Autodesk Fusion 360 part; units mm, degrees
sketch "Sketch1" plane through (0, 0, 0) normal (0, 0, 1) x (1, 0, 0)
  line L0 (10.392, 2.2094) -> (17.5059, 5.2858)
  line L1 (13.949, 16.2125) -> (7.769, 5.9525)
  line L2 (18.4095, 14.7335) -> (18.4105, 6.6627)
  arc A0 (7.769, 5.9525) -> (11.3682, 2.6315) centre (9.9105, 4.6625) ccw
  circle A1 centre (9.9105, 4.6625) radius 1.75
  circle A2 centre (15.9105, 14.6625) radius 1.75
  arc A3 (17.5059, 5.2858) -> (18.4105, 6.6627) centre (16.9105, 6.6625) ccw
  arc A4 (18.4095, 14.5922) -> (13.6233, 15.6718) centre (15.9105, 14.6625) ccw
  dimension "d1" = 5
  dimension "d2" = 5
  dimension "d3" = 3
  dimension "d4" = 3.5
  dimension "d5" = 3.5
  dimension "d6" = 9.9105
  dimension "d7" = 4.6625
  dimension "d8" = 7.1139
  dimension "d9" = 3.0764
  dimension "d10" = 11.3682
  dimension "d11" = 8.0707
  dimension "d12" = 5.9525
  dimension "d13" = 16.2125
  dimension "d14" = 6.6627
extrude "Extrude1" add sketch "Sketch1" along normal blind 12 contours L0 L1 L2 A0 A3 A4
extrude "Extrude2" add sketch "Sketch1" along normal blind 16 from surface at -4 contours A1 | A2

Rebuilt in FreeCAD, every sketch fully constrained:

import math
import FreeCAD as App
import Part
import Sketcher
Q = App.Units.Quantity

doc = App.newDocument("Part")
body = doc.addObject("PartDesign::Body", "Body")

sketch1 = body.newObject("Sketcher::SketchObject", "Sketch")
sketch1.AttachmentSupport = (doc.getObject("XY_Plane"), [""])
sketch1.MapMode = "FlatFace"
sketch1.addGeometry([
    Part.ArcOfCircle(Part.Circle(App.Vector(9.9, 4.7, 0), App.Vector(0, 0, 1), 2.5), math.radians(149), math.radians(281)),
    Part.LineSegment(App.Vector(10.4, 2.2, 0), App.Vector(17.5, 5.3, 0)),
    Part.ArcOfCircle(Part.Circle(App.Vector(16.9, 6.7, 0), App.Vector(0, 0, 1), 1.5), math.radians(-67), math.radians(0)),
    Part.LineSegment(App.Vector(18.4, 6.7, 0), App.Vector(18.4, 14.7, 0)),
    Part.ArcOfCircle(Part.Circle(App.Vector(15.9, 14.7, 0), App.Vector(0, 0, 1), 2.5), math.radians(2), math.radians(142)),
    Part.LineSegment(App.Vector(13.9, 16.2, 0), App.Vector(7.8, 6, 0)),
    Part.Circle(App.Vector(9.9, 4.7, 0), App.Vector(0, 0, 1), 1.8),
    Part.Circle(App.Vector(15.9, 14.7, 0), App.Vector(0, 0, 1), 1.8),
], False)
sketch1.addConstraint([
    Sketcher.Constraint("Coincident", 0, 2, 1, 1),
    Sketcher.Constraint("Tangent", 1, 2, 2, 1),
    Sketcher.Constraint("Tangent", 2, 2, 3, 1),
    Sketcher.Constraint("Coincident", 3, 2, 4, 1),
    Sketcher.Constraint("Coincident", 4, 2, 5, 1),
    Sketcher.Constraint("Tangent", 5, 2, 0, 1),
    Sketcher.Constraint("Coincident", 6, 3, 0, 3),
    Sketcher.Constraint("Coincident", 7, 3, 4, 3),
    Sketcher.Constraint("Equal", 0, 4),
    Sketcher.Constraint("Equal", 6, 7),
    Sketcher.Constraint("Diameter", 6, Q("3.5 mm")),
    Sketcher.Constraint("Radius", 0, Q("2.5 mm")),
    Sketcher.Constraint("Radius", 2, Q("1.5 mm")),
    Sketcher.Constraint("DistanceX", 0, 3, 2, 3, Q("7 mm")),
    Sketcher.Constraint("DistanceY", 0, 3, 2, 3, Q("2 mm")),
    Sketcher.Constraint("DistanceX", 4, 3, 2, 3, Q("1 mm")),
    Sketcher.Constraint("DistanceY", 2, 3, 4, 3, Q("8 mm")),
    Sketcher.Constraint("DistanceY", 2, 3, 3, 2, Q("8.071 mm")),
    Sketcher.Constraint("DistanceX", -1, 1, 0, 3, Q("9.9105 mm")),
    Sketcher.Constraint("DistanceY", -1, 1, 0, 3, Q("4.6625 mm")),
    Sketcher.Constraint("DistanceY", -1, 1, 4, 2, Q("16.2125 mm")),
    Sketcher.Constraint("DistanceX", 0, 2, 1, 2, Q("7.1139 mm")),
])
pad1 = body.newObject("PartDesign::Pad", "Pad")
pad1.Profile = sketch1
pad1.Length = 12

sketch2 = body.newObject("Sketcher::SketchObject", "Sketch001")
sketch2.AttachmentSupport = (doc.getObject("XY_Plane"), [""])
sketch2.MapMode = "FlatFace"
sketch2.AttachmentOffset = App.Placement(App.Vector(0, 0, -4), App.Rotation())
sketch2.addGeometry([
    Part.Circle(App.Vector(9.9, 4.7, 0), App.Vector(0, 0, 1), 1.8),
    Part.Circle(App.Vector(15.9, 14.7, 0), App.Vector(0, 0, 1), 1.8),
], False)
sketch2.addConstraint([
    Sketcher.Constraint("Equal", 0, 1),
    Sketcher.Constraint("Diameter", 0, Q("3.5 mm")),
    Sketcher.Constraint("DistanceX", 0, 3, 1, 3, Q("6 mm")),
    Sketcher.Constraint("DistanceY", 0, 3, 1, 3, Q("10 mm")),
    Sketcher.Constraint("DistanceX", -1, 1, 0, 3, Q("9.9105 mm")),
    Sketcher.Constraint("DistanceY", -1, 1, 0, 3, Q("4.6625 mm")),
])
pad2 = body.newObject("PartDesign::Pad", "Pad001")
pad2.Profile = sketch2
pad2.Length = 16

doc.recompute()
